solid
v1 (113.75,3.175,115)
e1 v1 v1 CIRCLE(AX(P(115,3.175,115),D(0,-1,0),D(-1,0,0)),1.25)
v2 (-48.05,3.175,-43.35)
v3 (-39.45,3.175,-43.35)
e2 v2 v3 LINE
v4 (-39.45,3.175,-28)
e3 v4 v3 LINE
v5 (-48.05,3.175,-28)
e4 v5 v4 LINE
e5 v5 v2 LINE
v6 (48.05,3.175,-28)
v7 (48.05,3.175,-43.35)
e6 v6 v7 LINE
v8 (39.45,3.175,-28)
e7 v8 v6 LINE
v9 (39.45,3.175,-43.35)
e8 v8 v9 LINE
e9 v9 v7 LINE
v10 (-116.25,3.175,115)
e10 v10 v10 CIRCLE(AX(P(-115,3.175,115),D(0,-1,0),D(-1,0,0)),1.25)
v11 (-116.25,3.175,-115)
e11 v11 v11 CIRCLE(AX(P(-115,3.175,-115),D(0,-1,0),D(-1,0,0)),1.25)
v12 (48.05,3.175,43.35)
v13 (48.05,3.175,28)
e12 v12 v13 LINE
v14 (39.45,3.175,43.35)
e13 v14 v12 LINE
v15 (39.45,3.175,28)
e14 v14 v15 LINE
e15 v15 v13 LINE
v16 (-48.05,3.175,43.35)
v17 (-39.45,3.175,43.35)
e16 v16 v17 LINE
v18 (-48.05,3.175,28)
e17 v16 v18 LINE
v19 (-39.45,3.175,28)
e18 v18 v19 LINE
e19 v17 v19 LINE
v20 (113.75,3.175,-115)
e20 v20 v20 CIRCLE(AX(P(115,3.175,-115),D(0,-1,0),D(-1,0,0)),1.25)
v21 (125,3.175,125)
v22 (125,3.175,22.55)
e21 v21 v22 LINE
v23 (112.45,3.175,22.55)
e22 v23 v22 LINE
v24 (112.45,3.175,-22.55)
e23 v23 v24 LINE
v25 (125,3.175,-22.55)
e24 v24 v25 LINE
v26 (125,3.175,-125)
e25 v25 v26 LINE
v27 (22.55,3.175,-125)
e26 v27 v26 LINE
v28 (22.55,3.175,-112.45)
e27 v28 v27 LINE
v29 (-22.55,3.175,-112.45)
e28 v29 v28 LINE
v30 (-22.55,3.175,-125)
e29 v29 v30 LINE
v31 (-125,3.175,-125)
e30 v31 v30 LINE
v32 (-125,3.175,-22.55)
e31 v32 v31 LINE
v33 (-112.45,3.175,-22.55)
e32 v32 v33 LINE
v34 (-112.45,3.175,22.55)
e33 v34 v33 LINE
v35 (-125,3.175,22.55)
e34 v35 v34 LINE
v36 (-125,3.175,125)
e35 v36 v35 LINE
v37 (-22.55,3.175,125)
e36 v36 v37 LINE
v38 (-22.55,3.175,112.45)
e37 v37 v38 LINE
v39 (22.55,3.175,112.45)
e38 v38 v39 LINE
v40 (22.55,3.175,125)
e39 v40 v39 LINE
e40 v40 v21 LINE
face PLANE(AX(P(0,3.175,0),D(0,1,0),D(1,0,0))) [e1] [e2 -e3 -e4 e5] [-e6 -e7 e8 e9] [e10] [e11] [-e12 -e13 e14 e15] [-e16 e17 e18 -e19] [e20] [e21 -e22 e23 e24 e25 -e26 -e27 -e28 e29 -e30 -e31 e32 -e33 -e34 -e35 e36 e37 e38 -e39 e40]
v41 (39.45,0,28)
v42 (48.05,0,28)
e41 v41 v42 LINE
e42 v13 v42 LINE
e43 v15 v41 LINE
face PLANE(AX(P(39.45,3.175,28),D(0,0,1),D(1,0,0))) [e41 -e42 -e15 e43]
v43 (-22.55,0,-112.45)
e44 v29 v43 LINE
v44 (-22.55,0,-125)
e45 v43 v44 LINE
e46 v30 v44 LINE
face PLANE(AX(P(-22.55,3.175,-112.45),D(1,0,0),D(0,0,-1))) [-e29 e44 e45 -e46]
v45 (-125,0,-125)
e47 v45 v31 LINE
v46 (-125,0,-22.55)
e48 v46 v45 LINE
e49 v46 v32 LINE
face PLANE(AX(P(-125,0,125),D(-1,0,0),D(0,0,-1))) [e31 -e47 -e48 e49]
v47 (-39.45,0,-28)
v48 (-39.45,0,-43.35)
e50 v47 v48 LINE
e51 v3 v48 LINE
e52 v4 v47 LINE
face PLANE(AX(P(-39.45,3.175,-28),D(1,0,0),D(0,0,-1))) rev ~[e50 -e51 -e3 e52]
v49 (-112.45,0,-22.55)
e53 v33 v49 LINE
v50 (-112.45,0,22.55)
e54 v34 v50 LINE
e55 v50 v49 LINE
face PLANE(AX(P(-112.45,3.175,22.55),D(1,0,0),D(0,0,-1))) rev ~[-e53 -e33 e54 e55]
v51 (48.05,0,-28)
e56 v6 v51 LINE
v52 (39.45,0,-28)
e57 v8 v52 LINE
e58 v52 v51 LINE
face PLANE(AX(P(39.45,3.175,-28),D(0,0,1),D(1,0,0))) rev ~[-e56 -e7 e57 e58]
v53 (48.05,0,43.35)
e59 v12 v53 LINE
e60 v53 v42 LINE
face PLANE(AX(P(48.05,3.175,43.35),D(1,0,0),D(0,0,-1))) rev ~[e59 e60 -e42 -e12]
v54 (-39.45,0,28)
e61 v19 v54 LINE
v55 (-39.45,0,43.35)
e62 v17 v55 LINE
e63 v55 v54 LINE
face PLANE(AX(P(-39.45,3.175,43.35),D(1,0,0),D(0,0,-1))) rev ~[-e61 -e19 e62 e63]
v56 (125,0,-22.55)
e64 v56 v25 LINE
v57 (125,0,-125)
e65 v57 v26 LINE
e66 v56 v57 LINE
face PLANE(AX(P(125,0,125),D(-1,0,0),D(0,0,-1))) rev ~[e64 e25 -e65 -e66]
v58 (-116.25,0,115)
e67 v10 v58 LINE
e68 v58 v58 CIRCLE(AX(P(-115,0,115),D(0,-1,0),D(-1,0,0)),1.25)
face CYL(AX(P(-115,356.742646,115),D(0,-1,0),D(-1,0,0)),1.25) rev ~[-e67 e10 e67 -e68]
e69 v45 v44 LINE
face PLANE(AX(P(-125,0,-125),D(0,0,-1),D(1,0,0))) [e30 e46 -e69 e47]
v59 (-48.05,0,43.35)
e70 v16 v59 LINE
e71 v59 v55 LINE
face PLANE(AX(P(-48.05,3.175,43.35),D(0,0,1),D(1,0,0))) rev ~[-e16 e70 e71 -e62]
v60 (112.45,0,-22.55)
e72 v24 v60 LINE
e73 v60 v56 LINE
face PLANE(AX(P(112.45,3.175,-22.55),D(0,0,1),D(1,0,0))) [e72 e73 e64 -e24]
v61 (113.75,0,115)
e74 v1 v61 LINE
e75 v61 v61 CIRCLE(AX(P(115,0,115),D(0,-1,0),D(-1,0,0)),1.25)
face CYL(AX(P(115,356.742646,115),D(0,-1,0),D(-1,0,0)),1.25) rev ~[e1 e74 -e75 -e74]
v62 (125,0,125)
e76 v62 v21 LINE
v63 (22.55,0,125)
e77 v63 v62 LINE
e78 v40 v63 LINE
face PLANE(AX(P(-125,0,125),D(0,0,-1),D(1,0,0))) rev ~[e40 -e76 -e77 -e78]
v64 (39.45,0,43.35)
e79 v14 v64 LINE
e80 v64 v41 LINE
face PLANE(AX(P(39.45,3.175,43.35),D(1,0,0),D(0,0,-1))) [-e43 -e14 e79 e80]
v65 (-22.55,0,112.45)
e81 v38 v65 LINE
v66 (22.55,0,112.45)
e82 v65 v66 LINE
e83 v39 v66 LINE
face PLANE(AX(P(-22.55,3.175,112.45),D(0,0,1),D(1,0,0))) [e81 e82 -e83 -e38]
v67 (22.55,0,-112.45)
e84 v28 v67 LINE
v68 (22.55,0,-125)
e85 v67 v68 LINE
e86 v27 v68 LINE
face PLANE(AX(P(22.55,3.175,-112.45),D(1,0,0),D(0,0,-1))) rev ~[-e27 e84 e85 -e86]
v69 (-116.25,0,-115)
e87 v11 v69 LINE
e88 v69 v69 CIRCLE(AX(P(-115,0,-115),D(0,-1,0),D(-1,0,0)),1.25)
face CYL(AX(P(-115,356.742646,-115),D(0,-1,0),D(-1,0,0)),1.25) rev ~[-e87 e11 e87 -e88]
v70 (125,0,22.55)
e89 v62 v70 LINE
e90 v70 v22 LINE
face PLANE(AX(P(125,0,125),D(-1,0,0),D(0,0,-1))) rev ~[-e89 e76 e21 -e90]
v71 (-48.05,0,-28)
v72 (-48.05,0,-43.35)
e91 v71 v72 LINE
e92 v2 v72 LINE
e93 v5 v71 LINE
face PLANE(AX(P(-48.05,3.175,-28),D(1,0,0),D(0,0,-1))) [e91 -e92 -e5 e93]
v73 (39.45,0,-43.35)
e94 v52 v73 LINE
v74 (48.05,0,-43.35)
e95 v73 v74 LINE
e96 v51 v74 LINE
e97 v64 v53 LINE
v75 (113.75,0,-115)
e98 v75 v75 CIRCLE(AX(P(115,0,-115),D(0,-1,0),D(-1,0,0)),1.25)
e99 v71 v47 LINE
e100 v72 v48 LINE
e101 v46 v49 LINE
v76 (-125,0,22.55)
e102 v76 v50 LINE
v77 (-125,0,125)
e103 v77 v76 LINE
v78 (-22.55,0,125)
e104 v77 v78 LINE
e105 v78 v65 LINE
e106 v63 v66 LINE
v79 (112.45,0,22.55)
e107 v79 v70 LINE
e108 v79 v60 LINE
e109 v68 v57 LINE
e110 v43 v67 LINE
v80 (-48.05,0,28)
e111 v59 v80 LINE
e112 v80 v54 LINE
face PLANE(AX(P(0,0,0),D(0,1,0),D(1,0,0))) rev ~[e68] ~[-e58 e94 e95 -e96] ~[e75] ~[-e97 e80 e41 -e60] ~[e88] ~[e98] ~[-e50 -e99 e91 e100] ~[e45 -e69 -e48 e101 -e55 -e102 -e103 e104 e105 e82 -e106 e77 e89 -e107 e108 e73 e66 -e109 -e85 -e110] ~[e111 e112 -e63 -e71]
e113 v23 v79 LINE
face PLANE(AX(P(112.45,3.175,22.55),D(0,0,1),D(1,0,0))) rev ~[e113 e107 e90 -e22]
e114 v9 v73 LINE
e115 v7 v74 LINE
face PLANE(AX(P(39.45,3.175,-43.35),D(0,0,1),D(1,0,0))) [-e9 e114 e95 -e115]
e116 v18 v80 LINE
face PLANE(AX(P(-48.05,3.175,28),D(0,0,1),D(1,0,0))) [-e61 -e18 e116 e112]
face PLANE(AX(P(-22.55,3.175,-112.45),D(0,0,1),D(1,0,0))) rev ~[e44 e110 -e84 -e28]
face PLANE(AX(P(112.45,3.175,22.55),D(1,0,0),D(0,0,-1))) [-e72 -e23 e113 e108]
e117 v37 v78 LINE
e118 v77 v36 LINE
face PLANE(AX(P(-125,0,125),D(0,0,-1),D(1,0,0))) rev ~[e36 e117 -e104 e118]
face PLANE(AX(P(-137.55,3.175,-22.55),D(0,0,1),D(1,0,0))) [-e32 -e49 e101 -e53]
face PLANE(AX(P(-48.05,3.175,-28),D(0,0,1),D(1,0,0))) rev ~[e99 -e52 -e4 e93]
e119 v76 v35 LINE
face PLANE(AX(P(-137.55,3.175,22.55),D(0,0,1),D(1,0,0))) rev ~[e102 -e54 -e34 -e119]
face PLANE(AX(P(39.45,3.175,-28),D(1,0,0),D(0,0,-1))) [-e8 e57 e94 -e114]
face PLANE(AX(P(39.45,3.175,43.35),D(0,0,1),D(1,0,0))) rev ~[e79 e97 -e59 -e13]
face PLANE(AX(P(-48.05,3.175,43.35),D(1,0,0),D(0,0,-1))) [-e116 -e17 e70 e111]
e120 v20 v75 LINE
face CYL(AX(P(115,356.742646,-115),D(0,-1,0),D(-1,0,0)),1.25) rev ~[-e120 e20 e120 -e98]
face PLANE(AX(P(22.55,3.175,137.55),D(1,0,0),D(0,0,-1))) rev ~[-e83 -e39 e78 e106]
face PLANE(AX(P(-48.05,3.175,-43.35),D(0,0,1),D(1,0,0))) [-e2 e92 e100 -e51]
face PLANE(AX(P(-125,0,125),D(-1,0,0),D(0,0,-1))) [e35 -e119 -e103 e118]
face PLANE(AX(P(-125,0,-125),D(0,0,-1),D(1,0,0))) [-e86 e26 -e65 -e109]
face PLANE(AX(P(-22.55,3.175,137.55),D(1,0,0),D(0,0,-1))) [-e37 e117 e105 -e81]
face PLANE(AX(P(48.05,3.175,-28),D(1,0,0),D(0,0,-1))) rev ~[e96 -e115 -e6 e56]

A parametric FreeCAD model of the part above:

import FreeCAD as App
import Part
import Sketcher
Q = App.Units.Quantity

doc = App.newDocument("Part")
body = doc.addObject("PartDesign::Body", "Body")

sketch1 = body.newObject("Sketcher::SketchObject", "Sketch")
sketch1.AttachmentSupport = (doc.getObject("XZ_Plane"), [""])
sketch1.MapMode = "FlatFace"
sketch1.addGeometry([
    Part.LineSegment(App.Vector(-125, -125, 0), App.Vector(-125, 125, 0)),
    Part.LineSegment(App.Vector(-125, 125, 0), App.Vector(125, 125, 0)),
    Part.LineSegment(App.Vector(125, 125, 0), App.Vector(125, -125, 0)),
    Part.LineSegment(App.Vector(125, -125, 0), App.Vector(-125, -125, 0)),
], False)
sketch1.addConstraint([
    Sketcher.Constraint("Coincident", 0, 2, 1, 1),
    Sketcher.Constraint("Coincident", 1, 2, 2, 1),
    Sketcher.Constraint("Coincident", 2, 2, 3, 1),
    Sketcher.Constraint("Coincident", 3, 2, 0, 1),
    Sketcher.Constraint("Vertical", 0),
    Sketcher.Constraint("Horizontal", 1),
    Sketcher.Constraint("Vertical", 2),
    Sketcher.Constraint("Horizontal", 3),
    Sketcher.Constraint("Symmetric", 0, 2, 2, 2, -1, 1),
    Sketcher.Constraint("Equal", 3, 0),
    Sketcher.Constraint("DistanceX", 1, 1, 1, 2, Q("250 mm")),
])
pad1 = body.newObject("PartDesign::Pad", "Pad")
pad1.Profile = sketch1
pad1.Length = 3.175
pad1.Reversed = True

sketch2 = body.newObject("Sketcher::SketchObject", "Sketch001")
sketch2.AttachmentSupport = (doc.getObject("XZ_Plane"), [""])
sketch2.MapMode = "FlatFace"
sketch2.AttachmentOffset = App.Placement(App.Vector(0, 0, -3.175), App.Rotation())
sketch2.addGeometry([
    Part.LineSegment(App.Vector(-48, -43, 0), App.Vector(-48, -28, 0)),
    Part.LineSegment(App.Vector(-48, -28, 0), App.Vector(-39, -28, 0)),
    Part.LineSegment(App.Vector(-39, -28, 0), App.Vector(-39, -43, 0)),
    Part.LineSegment(App.Vector(-39, -43, 0), App.Vector(-48, -43, 0)),
    Part.LineSegment(App.Vector(-48, 28, 0), App.Vector(-48, 43, 0)),
    Part.LineSegment(App.Vector(-48, 43, 0), App.Vector(-39, 43, 0)),
    Part.LineSegment(App.Vector(-39, 43, 0), App.Vector(-39, 28, 0)),
    Part.LineSegment(App.Vector(-39, 28, 0), App.Vector(-48, 28, 0)),
    Part.LineSegment(App.Vector(39, 28, 0), App.Vector(39, 43, 0)),
    Part.LineSegment(App.Vector(39, 43, 0), App.Vector(48, 43, 0)),
    Part.LineSegment(App.Vector(48, 43, 0), App.Vector(48, 28, 0)),
    Part.LineSegment(App.Vector(48, 28, 0), App.Vector(39, 28, 0)),
    Part.LineSegment(App.Vector(39, -43, 0), App.Vector(39, -28, 0)),
    Part.LineSegment(App.Vector(39, -28, 0), App.Vector(48, -28, 0)),
    Part.LineSegment(App.Vector(48, -28, 0), App.Vector(48, -43, 0)),
    Part.LineSegment(App.Vector(48, -43, 0), App.Vector(39, -43, 0)),
], False)
sketch2.addConstraint([
    Sketcher.Constraint("Coincident", 0, 2, 1, 1),
    Sketcher.Constraint("Coincident", 1, 2, 2, 1),
    Sketcher.Constraint("Coincident", 2, 2, 3, 1),
    Sketcher.Constraint("Coincident", 3, 2, 0, 1),
    Sketcher.Constraint("Coincident", 4, 2, 5, 1),
    Sketcher.Constraint("Coincident", 5, 2, 6, 1),
    Sketcher.Constraint("Coincident", 6, 2, 7, 1),
    Sketcher.Constraint("Coincident", 7, 2, 4, 1),
    Sketcher.Constraint("Coincident", 8, 2, 9, 1),
    Sketcher.Constraint("Coincident", 9, 2, 10, 1),
    Sketcher.Constraint("Coincident", 10, 2, 11, 1),
    Sketcher.Constraint("Coincident", 11, 2, 8, 1),
    Sketcher.Constraint("Coincident", 12, 2, 13, 1),
    Sketcher.Constraint("Coincident", 13, 2, 14, 1),
    Sketcher.Constraint("Coincident", 14, 2, 15, 1),
    Sketcher.Constraint("Coincident", 15, 2, 12, 1),
    Sketcher.Constraint("Vertical", 0),
    Sketcher.Constraint("Horizontal", 1),
    Sketcher.Constraint("Vertical", 2),
    Sketcher.Constraint("Horizontal", 3),
    Sketcher.Constraint("Vertical", 4),
    Sketcher.Constraint("Horizontal", 5),
    Sketcher.Constraint("Vertical", 6),
    Sketcher.Constraint("Horizontal", 7),
    Sketcher.Constraint("Vertical", 8),
    Sketcher.Constraint("Horizontal", 9),
    Sketcher.Constraint("Vertical", 10),
    Sketcher.Constraint("Horizontal", 11),
    Sketcher.Constraint("Vertical", 12),
    Sketcher.Constraint("Horizontal", 13),
    Sketcher.Constraint("Vertical", 14),
    Sketcher.Constraint("Horizontal", 15),
    Sketcher.Constraint("Symmetric", 2, 2, 8, 2, -1, 1),
    Sketcher.Constraint("Symmetric", 0, 2, 10, 2, -1, 1),
    Sketcher.Constraint("Symmetric", 6, 2, 12, 2, -1, 1),
    Sketcher.Constraint("Symmetric", 4, 2, 14, 2, -1, 1),
    Sketcher.Constraint("Symmetric", 5, 2, 8, 2, -2),
    Sketcher.Constraint("Symmetric", 7, 2, 10, 2, -2),
    Sketcher.Constraint("DistanceX", 1, 1, 1, 2, Q("8.6 mm")),
    Sketcher.Constraint("DistanceY", 0, 2, -1, 1, Q("28 mm")),
    Sketcher.Constraint("DistanceY", 0, 1, 0, 2, Q("15.35 mm")),
    Sketcher.Constraint("DistanceX", 5, 2, 8, 2, Q("78.9 mm")),
])
pocket1 = body.newObject("PartDesign::Pocket", "Pocket")
pocket1.Profile = sketch2
pocket1.Length = 10
pocket1.Reversed = True

sketch3 = body.newObject("Sketcher::SketchObject", "Sketch002")
sketch3.AttachmentSupport = (doc.getObject("XZ_Plane"), [""])
sketch3.MapMode = "FlatFace"
sketch3.AttachmentOffset = App.Placement(App.Vector(0, 0, -3.175), App.Rotation())
sketch3.addGeometry([
    Part.LineSegment(App.Vector(-23, -138, 0), App.Vector(-23, -112, 0)),
    Part.LineSegment(App.Vector(-23, -112, 0), App.Vector(23, -112, 0)),
    Part.LineSegment(App.Vector(23, -112, 0), App.Vector(23, -138, 0)),
    Part.LineSegment(App.Vector(23, -138, 0), App.Vector(-23, -138, 0)),
    Part.LineSegment(App.Vector(112, -23, 0), App.Vector(112, 23, 0)),
    Part.LineSegment(App.Vector(112, 23, 0), App.Vector(138, 23, 0)),
    Part.LineSegment(App.Vector(138, 23, 0), App.Vector(138, -23, 0)),
    Part.LineSegment(App.Vector(138, -23, 0), App.Vector(112, -23, 0)),
    Part.LineSegment(App.Vector(-23, 112, 0), App.Vector(-23, 138, 0)),
    Part.LineSegment(App.Vector(-23, 138, 0), App.Vector(23, 138, 0)),
    Part.LineSegment(App.Vector(23, 138, 0), App.Vector(23, 112, 0)),
    Part.LineSegment(App.Vector(23, 112, 0), App.Vector(-23, 112, 0)),
    Part.LineSegment(App.Vector(-138, -23, 0), App.Vector(-138, 23, 0)),
    Part.LineSegment(App.Vector(-138, 23, 0), App.Vector(-112, 23, 0)),
    Part.LineSegment(App.Vector(-112, 23, 0), App.Vector(-112, -23, 0)),
    Part.LineSegment(App.Vector(-112, -23, 0), App.Vector(-138, -23, 0)),
], False)
sketch3.addConstraint([
    Sketcher.Constraint("Coincident", 0, 2, 1, 1),
    Sketcher.Constraint("Coincident", 1, 2, 2, 1),
    Sketcher.Constraint("Coincident", 2, 2, 3, 1),
    Sketcher.Constraint("Coincident", 3, 2, 0, 1),
    Sketcher.Constraint("Coincident", 4, 2, 5, 1),
    Sketcher.Constraint("Coincident", 5, 2, 6, 1),
    Sketcher.Constraint("Coincident", 6, 2, 7, 1),
    Sketcher.Constraint("Coincident", 7, 2, 4, 1),
    Sketcher.Constraint("Coincident", 8, 2, 9, 1),
    Sketcher.Constraint("Coincident", 9, 2, 10, 1),
    Sketcher.Constraint("Coincident", 10, 2, 11, 1),
    Sketcher.Constraint("Coincident", 11, 2, 8, 1),
    Sketcher.Constraint("Coincident", 12, 2, 13, 1),
    Sketcher.Constraint("Coincident", 13, 2, 14, 1),
    Sketcher.Constraint("Coincident", 14, 2, 15, 1),
    Sketcher.Constraint("Coincident", 15, 2, 12, 1),
    Sketcher.Constraint("Vertical", 0),
    Sketcher.Constraint("Horizontal", 1),
    Sketcher.Constraint("Vertical", 2),
    Sketcher.Constraint("Horizontal", 3),
    Sketcher.Constraint("Vertical", 4),
    Sketcher.Constraint("Horizontal", 5),
    Sketcher.Constraint("Vertical", 6),
    Sketcher.Constraint("Horizontal", 7),
    Sketcher.Constraint("Vertical", 8),
    Sketcher.Constraint("Horizontal", 9),
    Sketcher.Constraint("Vertical", 10),
    Sketcher.Constraint("Horizontal", 11),
    Sketcher.Constraint("Vertical", 12),
    Sketcher.Constraint("Horizontal", 13),
    Sketcher.Constraint("Vertical", 14),
    Sketcher.Constraint("Horizontal", 15),
    Sketcher.Constraint("Symmetric", 2, 2, 8, 2, -1, 1),
    Sketcher.Constraint("Symmetric", 0, 2, 10, 2, -1, 1),
    Sketcher.Constraint("Symmetric", 6, 2, 12, 2, -1, 1),
    Sketcher.Constraint("Symmetric", 4, 2, 14, 2, -1, 1),
    Sketcher.Constraint("Horizontal", 5, 2, 12, 2),
    Sketcher.Constraint("Vertical", 3, 2, 8, 2),
    Sketcher.Constraint("Equal", 15, 0),
    Sketcher.Constraint("Equal", 11, 4),
    Sketcher.Constraint("DistanceX", 1, 1, 1, 2, Q("45.1 mm")),
    Sketcher.Constraint("DistanceX", 5, 1, 5, 2, Q("25.1 mm")),
    Sketcher.Constraint("DistanceY", 1, 2, 4, 2, Q("135 mm")),
    Sketcher.Constraint("DistanceX", 0, 2, 4, 2, Q("135 mm")),
])
pocket2 = body.newObject("PartDesign::Pocket", "Pocket001")
pocket2.Profile = sketch3
pocket2.Length = 10
pocket2.Reversed = True

sketch4 = body.newObject("Sketcher::SketchObject", "Sketch003")
sketch4.AttachmentSupport = (doc.getObject("XZ_Plane"), [""])
sketch4.MapMode = "FlatFace"
sketch4.AttachmentOffset = App.Placement(App.Vector(0, 0, -3.175), App.Rotation())
sketch4.addGeometry(Part.Circle(App.Vector(-115, -115, 0), App.Vector(0, 0, 1), 1.2), False)
sketch4.addConstraint([
    Sketcher.Constraint("Diameter", 0, Q("2.5 mm")),
    Sketcher.Constraint("DistanceX", 0, 3, -1, 1, Q("115 mm")),
    Sketcher.Constraint("DistanceY", 0, 3, -1, 1, Q("115 mm")),
])
doc.recompute()
hole = body.newObject("PartDesign::Hole", "Hole")
hole.Profile = sketch4
hole.ThreadType = "None"
hole.Diameter = 2.5
hole.DepthType = "ThroughAll"
hole.Reversed = True

sketch5 = body.newObject("Sketcher::SketchObject", "Sketch004")
sketch5.AttachmentSupport = (doc.getObject("XZ_Plane"), [""])
sketch5.MapMode = "FlatFace"
sketch5.AttachmentOffset = App.Placement(App.Vector(0, 0, -3.175), App.Rotation())
sketch5.addGeometry([
    Part.Circle(App.Vector(115, -115, 0), App.Vector(0, 0, 1), 1.2),
    Part.Circle(App.Vector(115, 115, 0), App.Vector(0, 0, 1), 1.2),
    Part.Circle(App.Vector(-115, 115, 0), App.Vector(0, 0, 1), 1.2),
], False)
sketch5.addConstraint([
    Sketcher.Constraint("Equal", 0, 1),
    Sketcher.Constraint("Equal", 1, 2),
    Sketcher.Constraint("Symmetric", 0, 3, 2, 3, -1, 1),
    Sketcher.Constraint("Symmetric", 1, 3, 2, 3, -2),
    Sketcher.Constraint("Diameter", 0, Q("2.5 mm")),
    Sketcher.Constraint("DistanceX", -1, 1, 0, 3, Q("115 mm")),
    Sketcher.Constraint("DistanceY", 0, 3, -1, 1, Q("115 mm")),
])
doc.recompute()
hole2 = body.newObject("PartDesign::Hole", "Hole001")
hole2.Profile = sketch5
hole2.ThreadType = "None"
hole2.Diameter = 2.5
hole2.DepthType = "ThroughAll"
hole2.Reversed = True

doc.recompute()
